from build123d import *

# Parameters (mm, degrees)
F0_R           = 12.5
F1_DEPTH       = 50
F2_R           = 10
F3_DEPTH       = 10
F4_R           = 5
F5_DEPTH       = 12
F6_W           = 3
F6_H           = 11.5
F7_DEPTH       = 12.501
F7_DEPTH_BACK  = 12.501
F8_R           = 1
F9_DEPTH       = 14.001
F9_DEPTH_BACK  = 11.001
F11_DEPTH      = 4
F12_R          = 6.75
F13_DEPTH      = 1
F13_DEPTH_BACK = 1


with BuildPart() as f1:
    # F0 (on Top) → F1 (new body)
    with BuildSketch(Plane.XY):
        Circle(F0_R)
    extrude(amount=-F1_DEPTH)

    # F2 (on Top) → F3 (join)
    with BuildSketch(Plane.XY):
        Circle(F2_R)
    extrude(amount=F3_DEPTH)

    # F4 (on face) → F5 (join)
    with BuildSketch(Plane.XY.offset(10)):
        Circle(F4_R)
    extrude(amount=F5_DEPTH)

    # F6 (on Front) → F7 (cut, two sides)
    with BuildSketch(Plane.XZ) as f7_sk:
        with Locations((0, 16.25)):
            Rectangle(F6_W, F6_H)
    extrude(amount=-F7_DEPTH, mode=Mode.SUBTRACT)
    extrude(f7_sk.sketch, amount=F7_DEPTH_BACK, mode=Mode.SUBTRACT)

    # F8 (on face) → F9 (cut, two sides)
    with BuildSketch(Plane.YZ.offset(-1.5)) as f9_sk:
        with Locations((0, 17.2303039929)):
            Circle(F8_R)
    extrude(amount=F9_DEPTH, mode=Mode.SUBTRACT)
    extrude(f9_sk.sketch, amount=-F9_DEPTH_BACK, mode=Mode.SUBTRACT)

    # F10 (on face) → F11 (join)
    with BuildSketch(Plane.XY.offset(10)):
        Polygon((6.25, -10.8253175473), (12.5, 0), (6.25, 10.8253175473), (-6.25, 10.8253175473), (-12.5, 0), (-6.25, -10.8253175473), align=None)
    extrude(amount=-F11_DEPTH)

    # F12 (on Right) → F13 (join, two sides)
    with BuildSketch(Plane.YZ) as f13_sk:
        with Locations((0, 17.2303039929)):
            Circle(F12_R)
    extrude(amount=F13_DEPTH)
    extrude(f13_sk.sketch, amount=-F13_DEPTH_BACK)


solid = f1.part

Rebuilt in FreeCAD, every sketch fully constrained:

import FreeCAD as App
import Part
import Sketcher
Q = App.Units.Quantity


def add_polygon(sketch, points):
    """Adds a closed chain of lines whose ends are joined by coincident constraints."""
    first, n = sketch.GeometryCount, len(points)
    for a, b in zip(points, points[1:] + points[:1]):
        sketch.addGeometry(Part.LineSegment(App.Vector(*a, 0), App.Vector(*b, 0)), False)
    for i in range(n):
        sketch.addConstraint(Sketcher.Constraint("Coincident", first + i, 2, first + (i + 1) % n, 1))

doc = App.newDocument("Part")
body = doc.addObject("PartDesign::Body", "Body")

# Sketch on XY plane
sketch1 = doc.addObject("Sketcher::SketchObject", "Sketch")
body.addObject(sketch1)
sketch1.AttachmentSupport = (doc.XY_Plane, [""])
sketch1.MapMode = "FlatFace"
sketch1.addGeometry(Part.Circle(App.Vector(0, 0, 0), App.Vector(0, 0, 1), 12), False)
sketch1.addConstraint(Sketcher.Constraint("Coincident", 0, 3, -1, 1))
sketch1.addConstraint(Sketcher.Constraint("Diameter", 0, 25.0))
pad1 = doc.addObject("PartDesign::Pad", "Pad")
body.addObject(pad1)
pad1.Profile = sketch1
pad1.Length = 50
pad1.Reversed = True

# Sketch on XY plane
sketch2 = doc.addObject("Sketcher::SketchObject", "Sketch001")
body.addObject(sketch2)
sketch2.AttachmentSupport = (doc.XY_Plane, [""])
sketch2.MapMode = "FlatFace"
sketch2.addGeometry(Part.Circle(App.Vector(0, 0, 0), App.Vector(0, 0, 1), 10), False)
sketch2.addConstraint(Sketcher.Constraint("Coincident", 0, 3, -1, 1))
sketch2.addConstraint(Sketcher.Constraint("Diameter", 0, 20.0))
pad2 = doc.addObject("PartDesign::Pad", "Pad001")
body.addObject(pad2)
pad2.Profile = sketch2
pad2.Length = 10

# Sketch on XY plane
sketch3 = doc.addObject("Sketcher::SketchObject", "Sketch002")
body.addObject(sketch3)
sketch3.AttachmentSupport = (doc.XY_Plane, [""])
sketch3.MapMode = "FlatFace"
sketch3.AttachmentOffset = App.Placement(App.Vector(0, 0, 10), App.Rotation())
sketch3.addGeometry(Part.Circle(App.Vector(0, 0, 0), App.Vector(0, 0, 1), 5), False)
sketch3.addConstraint(Sketcher.Constraint("Coincident", 0, 3, -1, 1))
sketch3.addConstraint(Sketcher.Constraint("Diameter", 0, 10.0))
pad3 = doc.addObject("PartDesign::Pad", "Pad002")
body.addObject(pad3)
pad3.Profile = sketch3
pad3.Length = 12

# Sketch on XZ plane
sketch4 = doc.addObject("Sketcher::SketchObject", "Sketch003")
body.addObject(sketch4)
sketch4.AttachmentSupport = (doc.XZ_Plane, [""])
sketch4.MapMode = "FlatFace"
add_polygon(sketch4, [(-1.5, 22), (-1.5, 10.5), (1.5, 10.5), (1.5, 22)])  # lines 0-3
sketch4.addConstraint(Sketcher.Constraint("Vertical", 0))
sketch4.addConstraint(Sketcher.Constraint("Horizontal", 1))
sketch4.addConstraint(Sketcher.Constraint("Vertical", 2))
sketch4.addConstraint(Sketcher.Constraint("Horizontal", 3))
sketch4.addConstraint(Sketcher.Constraint("DistanceX", 1, 1, 1, 2, 3.0))
sketch4.addConstraint(Sketcher.Constraint("DistanceY", 0, 2, 0, 1, 11.5))
sketch4.addConstraint(Sketcher.Constraint("DistanceY", -1, 1, 2, 2, 22.0))
sketch4.addConstraint(Sketcher.Constraint("DistanceX", 0, 2, -1, 1, 1.5))
pocket1 = doc.addObject("PartDesign::Pocket", "Pocket")
body.addObject(pocket1)
pocket1.Profile = sketch4
pocket1.Type = "ThroughAll"
pocket1.Midplane = True

# Sketch on YZ plane
sketch5 = doc.addObject("Sketcher::SketchObject", "Sketch004")
body.addObject(sketch5)
sketch5.AttachmentSupport = (doc.YZ_Plane, [""])
sketch5.MapMode = "FlatFace"
sketch5.AttachmentOffset = App.Placement(App.Vector(0, 0, -1.5), App.Rotation())
sketch5.addGeometry(Part.Circle(App.Vector(0, 17.2, 0), App.Vector(0, 0, 1), 1), False)
sketch5.addConstraint(Sketcher.Constraint("PointOnObject", 0, 3, -2))
sketch5.addConstraint(Sketcher.Constraint("Diameter", 0, 2.0))
sketch5.addConstraint(Sketcher.Constraint("DistanceY", -1, 1, 0, 3, 17.230304))
pocket2 = doc.addObject("PartDesign::Pocket", "Pocket001")
body.addObject(pocket2)
pocket2.Profile = sketch5
pocket2.Type = "ThroughAll"
pocket2.Midplane = True

# Sketch on XY plane
sketch6 = doc.addObject("Sketcher::SketchObject", "Sketch005")
body.addObject(sketch6)
sketch6.AttachmentSupport = (doc.XY_Plane, [""])
sketch6.MapMode = "FlatFace"
sketch6.AttachmentOffset = App.Placement(App.Vector(0, 0, 10), App.Rotation())
add_polygon(sketch6, [(6, -11), (12, 0), (6, 11), (-6, 11), (-12, 0), (-6, -11)])  # lines 0-5
sketch6.addConstraint(Sketcher.Constraint("Horizontal", 2))
sketch6.addConstraint(Sketcher.Constraint("Horizontal", 5))
sketch6.addConstraint(Sketcher.Constraint("Symmetric", 0, 2, 3, 2, -1, 1))
sketch6.addConstraint(Sketcher.Constraint("Symmetric", 1, 2, 4, 2, -1, 1))
sketch6.addConstraint(Sketcher.Constraint("PointOnObject", 0, 2, -1))
sketch6.addConstraint(Sketcher.Constraint("Parallel", 0, 3))
sketch6.addConstraint(Sketcher.Constraint("Vertical", 2, 2, 4, 2))
sketch6.addConstraint(Sketcher.Constraint("Angle", 0, Q("60 deg")))
sketch6.addConstraint(Sketcher.Constraint("DistanceX", 2, 2, 2, 1, 12.5))
sketch6.addConstraint(Sketcher.Constraint("DistanceX", 3, 2, 0, 2, 25.0))
pad4 = doc.addObject("PartDesign::Pad", "Pad003")
body.addObject(pad4)
pad4.Profile = sketch6
pad4.Length = 4
pad4.Reversed = True

# Sketch on YZ plane
sketch7 = doc.addObject("Sketcher::SketchObject", "Sketch006")
body.addObject(sketch7)
sketch7.AttachmentSupport = (doc.YZ_Plane, [""])
sketch7.MapMode = "FlatFace"
sketch7.addGeometry(Part.Circle(App.Vector(0, 17, 0), App.Vector(0, 0, 1), 7), False)
sketch7.addConstraint(Sketcher.Constraint("PointOnObject", 0, 3, -2))
sketch7.addConstraint(Sketcher.Constraint("Diameter", 0, 13.5))
sketch7.addConstraint(Sketcher.Constraint("DistanceY", -1, 1, 0, 3, 17.230304))
pad5 = doc.addObject("PartDesign::Pad", "Pad004")
body.addObject(pad5)
pad5.Profile = sketch7
pad5.Type = "TwoLengths"
pad5.Length = 1
pad5.Length2 = 1

doc.recompute()
